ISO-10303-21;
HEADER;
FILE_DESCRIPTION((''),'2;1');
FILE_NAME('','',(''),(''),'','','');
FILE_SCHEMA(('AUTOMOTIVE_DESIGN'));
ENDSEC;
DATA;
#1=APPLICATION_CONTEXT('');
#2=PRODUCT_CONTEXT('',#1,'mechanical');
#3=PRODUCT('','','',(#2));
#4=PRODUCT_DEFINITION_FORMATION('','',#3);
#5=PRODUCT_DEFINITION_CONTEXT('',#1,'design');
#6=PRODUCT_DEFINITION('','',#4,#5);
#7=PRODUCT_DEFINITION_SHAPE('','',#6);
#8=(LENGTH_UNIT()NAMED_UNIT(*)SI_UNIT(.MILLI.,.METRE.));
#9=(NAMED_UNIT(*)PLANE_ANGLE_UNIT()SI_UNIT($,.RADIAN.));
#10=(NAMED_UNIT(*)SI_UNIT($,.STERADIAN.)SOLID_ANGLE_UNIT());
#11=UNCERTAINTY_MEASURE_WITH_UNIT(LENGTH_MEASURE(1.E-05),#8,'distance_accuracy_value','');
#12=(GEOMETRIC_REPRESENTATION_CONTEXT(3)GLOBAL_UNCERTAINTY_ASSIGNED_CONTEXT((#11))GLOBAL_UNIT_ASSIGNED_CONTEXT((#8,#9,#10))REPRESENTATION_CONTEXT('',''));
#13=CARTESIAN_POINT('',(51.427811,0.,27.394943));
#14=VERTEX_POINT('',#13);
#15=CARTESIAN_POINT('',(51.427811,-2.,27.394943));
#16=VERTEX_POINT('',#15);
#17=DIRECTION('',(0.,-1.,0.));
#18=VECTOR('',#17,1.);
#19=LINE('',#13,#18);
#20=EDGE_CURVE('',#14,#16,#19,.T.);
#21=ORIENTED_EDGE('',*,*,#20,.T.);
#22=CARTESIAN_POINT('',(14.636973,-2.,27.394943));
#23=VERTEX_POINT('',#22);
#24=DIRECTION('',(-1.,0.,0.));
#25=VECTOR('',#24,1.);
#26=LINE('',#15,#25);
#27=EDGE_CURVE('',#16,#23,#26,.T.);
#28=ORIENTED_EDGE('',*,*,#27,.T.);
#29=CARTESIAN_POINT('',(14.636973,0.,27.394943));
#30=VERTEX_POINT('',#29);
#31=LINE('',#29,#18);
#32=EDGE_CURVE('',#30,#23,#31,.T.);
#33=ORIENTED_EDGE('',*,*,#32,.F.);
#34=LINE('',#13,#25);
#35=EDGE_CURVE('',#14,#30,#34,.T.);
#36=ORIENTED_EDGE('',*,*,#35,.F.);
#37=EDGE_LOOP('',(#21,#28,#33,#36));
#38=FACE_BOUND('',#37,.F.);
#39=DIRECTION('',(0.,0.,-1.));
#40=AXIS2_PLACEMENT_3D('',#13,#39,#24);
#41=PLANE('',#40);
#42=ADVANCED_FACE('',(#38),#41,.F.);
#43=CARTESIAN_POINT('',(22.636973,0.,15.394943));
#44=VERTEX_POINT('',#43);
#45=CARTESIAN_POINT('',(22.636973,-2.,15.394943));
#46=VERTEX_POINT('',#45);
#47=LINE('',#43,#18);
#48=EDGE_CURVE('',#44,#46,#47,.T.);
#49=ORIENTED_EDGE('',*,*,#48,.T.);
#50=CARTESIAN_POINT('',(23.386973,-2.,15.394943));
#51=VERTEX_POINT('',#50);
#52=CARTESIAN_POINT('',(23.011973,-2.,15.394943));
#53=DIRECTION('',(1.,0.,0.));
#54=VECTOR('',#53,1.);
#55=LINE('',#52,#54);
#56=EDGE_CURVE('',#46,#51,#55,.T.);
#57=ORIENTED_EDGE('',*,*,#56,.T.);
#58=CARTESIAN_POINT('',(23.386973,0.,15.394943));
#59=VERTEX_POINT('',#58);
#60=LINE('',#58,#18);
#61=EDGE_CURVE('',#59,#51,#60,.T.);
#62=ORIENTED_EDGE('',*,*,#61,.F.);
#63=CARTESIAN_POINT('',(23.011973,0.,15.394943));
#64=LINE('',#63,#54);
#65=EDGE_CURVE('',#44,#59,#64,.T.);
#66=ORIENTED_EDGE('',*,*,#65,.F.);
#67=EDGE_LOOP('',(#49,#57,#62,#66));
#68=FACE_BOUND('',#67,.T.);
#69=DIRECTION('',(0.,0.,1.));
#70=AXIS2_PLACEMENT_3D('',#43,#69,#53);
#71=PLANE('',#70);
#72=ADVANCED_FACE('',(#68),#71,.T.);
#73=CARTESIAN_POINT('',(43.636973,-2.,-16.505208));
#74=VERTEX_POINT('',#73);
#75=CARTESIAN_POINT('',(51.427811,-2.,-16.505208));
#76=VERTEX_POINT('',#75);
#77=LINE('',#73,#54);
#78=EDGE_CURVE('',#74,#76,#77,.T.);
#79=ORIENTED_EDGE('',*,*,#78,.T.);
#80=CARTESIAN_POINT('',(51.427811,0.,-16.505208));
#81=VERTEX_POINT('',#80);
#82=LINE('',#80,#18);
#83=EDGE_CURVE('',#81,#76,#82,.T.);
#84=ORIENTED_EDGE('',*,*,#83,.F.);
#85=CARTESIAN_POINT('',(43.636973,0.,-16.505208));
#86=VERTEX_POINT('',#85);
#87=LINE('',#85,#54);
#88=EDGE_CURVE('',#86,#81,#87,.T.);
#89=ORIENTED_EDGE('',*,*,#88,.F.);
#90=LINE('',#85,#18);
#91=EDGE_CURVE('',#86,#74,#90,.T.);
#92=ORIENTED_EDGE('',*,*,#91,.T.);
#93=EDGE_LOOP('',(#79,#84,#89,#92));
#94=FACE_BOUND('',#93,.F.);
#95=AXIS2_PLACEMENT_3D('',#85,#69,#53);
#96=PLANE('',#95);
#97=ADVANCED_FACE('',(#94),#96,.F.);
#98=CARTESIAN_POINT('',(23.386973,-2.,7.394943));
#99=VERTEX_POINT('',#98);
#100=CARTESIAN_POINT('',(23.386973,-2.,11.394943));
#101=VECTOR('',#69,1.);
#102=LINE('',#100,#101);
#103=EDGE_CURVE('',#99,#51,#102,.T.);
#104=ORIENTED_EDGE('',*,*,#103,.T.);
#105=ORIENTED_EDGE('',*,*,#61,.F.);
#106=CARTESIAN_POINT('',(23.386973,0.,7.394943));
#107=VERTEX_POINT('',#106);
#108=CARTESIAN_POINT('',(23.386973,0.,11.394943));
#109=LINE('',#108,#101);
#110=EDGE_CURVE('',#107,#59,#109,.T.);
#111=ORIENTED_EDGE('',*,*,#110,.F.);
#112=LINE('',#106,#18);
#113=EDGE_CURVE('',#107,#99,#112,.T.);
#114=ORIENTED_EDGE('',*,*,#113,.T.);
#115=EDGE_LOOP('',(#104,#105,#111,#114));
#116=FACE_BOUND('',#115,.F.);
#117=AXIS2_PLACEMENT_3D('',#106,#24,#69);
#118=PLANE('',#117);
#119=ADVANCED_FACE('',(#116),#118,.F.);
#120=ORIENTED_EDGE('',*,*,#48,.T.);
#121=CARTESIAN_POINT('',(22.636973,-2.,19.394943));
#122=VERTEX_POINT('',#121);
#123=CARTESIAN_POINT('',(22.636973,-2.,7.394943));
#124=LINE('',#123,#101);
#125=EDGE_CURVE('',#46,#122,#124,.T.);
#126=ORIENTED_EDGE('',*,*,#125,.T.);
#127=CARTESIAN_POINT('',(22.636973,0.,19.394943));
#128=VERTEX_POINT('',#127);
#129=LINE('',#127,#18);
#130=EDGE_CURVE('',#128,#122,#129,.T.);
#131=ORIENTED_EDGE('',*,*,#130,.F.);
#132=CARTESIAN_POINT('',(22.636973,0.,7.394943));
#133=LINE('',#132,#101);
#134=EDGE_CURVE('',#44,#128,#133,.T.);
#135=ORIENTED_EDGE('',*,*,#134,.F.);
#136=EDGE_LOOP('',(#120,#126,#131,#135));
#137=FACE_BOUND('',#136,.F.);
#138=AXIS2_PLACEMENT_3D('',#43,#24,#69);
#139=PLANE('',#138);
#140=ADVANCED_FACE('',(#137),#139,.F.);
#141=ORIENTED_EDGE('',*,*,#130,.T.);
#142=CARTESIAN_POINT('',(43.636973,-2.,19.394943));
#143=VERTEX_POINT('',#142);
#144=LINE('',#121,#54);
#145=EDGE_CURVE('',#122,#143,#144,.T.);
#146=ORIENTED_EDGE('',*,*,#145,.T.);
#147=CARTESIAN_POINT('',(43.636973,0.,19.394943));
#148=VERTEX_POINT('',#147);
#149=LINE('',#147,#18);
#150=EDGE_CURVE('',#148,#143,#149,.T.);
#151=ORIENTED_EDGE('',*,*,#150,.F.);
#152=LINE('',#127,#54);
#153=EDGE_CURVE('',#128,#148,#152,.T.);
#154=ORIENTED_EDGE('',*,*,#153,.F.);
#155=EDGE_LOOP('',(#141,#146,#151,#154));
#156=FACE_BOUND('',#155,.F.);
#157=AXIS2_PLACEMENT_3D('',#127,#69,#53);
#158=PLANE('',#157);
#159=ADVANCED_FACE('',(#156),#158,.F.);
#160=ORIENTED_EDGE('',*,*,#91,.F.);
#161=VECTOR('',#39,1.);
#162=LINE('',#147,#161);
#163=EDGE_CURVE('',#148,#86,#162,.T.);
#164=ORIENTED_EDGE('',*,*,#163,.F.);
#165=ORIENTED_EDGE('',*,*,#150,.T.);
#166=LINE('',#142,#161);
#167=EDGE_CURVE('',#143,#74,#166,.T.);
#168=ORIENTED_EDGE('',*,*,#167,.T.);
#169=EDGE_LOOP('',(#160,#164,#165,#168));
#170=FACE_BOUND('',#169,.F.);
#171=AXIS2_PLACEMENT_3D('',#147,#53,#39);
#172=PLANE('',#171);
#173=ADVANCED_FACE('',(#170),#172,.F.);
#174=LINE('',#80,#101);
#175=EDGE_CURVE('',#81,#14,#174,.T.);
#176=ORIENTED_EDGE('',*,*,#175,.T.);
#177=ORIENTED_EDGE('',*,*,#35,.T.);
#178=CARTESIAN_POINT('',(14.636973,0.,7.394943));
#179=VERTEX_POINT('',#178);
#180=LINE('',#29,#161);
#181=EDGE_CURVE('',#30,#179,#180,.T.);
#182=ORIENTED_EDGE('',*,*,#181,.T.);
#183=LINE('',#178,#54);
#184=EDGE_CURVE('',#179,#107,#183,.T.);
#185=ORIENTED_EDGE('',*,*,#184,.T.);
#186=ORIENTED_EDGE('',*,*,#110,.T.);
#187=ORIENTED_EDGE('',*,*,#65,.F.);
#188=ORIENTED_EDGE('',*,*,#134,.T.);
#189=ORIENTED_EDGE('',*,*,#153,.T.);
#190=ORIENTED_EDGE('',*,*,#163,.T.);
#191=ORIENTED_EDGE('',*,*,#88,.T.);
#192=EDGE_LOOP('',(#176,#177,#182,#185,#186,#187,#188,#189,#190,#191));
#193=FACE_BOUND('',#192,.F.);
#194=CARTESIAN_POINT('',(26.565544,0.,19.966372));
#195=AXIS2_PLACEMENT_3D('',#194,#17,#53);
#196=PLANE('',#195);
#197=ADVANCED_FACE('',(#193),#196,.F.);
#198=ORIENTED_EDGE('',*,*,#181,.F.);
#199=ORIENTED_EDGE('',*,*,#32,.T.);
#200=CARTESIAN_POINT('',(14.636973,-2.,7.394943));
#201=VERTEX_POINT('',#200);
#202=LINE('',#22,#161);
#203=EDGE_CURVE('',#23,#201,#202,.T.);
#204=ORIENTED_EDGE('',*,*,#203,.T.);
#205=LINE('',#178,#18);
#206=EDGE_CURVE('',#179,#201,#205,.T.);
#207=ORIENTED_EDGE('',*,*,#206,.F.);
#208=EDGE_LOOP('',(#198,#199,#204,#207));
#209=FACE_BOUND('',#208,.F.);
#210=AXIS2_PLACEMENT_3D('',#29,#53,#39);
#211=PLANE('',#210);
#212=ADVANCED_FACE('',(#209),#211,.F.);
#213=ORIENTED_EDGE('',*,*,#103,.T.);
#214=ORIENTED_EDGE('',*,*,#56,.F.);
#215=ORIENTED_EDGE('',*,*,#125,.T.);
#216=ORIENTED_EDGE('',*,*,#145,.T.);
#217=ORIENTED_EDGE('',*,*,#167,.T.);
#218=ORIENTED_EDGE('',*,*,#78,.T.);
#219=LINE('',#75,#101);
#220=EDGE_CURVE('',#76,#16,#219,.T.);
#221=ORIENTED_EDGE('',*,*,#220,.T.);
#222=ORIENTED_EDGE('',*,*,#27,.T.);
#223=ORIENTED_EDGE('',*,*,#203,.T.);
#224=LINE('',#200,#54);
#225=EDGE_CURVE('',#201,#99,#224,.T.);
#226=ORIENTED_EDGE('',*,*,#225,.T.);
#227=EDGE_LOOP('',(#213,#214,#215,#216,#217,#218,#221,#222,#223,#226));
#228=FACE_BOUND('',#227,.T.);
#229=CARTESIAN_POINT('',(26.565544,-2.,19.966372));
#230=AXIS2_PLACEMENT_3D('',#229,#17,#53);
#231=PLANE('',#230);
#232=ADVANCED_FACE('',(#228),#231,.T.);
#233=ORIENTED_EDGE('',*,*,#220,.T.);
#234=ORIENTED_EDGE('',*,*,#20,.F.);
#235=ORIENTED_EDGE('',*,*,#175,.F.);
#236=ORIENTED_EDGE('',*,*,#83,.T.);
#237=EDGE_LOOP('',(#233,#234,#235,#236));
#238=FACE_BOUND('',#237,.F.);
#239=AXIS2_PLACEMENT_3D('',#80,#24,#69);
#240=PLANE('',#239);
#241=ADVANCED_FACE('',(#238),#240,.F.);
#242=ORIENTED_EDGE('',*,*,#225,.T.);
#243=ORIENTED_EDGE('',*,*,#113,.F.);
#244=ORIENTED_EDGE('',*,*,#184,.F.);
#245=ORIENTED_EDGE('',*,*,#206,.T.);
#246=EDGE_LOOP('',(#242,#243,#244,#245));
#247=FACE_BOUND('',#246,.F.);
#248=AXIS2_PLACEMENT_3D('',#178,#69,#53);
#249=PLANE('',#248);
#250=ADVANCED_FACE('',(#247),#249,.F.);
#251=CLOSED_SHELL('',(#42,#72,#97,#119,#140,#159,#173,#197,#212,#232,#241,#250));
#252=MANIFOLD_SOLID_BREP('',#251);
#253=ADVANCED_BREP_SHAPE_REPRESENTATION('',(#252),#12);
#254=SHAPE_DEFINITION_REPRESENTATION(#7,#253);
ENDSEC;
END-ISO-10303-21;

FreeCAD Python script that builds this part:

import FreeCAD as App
import Part
import Sketcher

V = App.Vector
Q = App.Units.Quantity


def add_polygon(sketch, points):
    """Adds a closed chain of lines whose ends are joined by coincident constraints."""
    first, n = sketch.GeometryCount, len(points)
    for a, b in zip(points, points[1:] + points[:1]):
        sketch.addGeometry(Part.LineSegment(App.Vector(*a, 0), App.Vector(*b, 0)), False)
    for i in range(n):
        sketch.addConstraint(Sketcher.Constraint("Coincident", first + i, 2, first + (i + 1) % n, 1))

doc = App.newDocument("Part")
body = doc.addObject("PartDesign::Body", "Body")

# Sketch on XZ plane
sketch1 = body.newObject("Sketcher::SketchObject", "Sketch")
sketch1.AttachmentSupport = (doc.getObject("XZ_Plane"), [""])
sketch1.MapMode = "FlatFace"
add_polygon(sketch1, [(22.6, 19.4), (43.6, 19.4), (43.6, -16.5), (51.4, -16.5), (51.4, 27.4), (14.6, 27.4), (14.6, 7.4), (23.4, 7.4), (23.4, 15.4), (22.6, 15.4)])  # lines 0-9
sketch1.addConstraint(Sketcher.Constraint("Horizontal", 0))
sketch1.addConstraint(Sketcher.Constraint("Vertical", 1))
sketch1.addConstraint(Sketcher.Constraint("Horizontal", 2))
sketch1.addConstraint(Sketcher.Constraint("Vertical", 3))
sketch1.addConstraint(Sketcher.Constraint("Horizontal", 4))
sketch1.addConstraint(Sketcher.Constraint("Vertical", 5))
sketch1.addConstraint(Sketcher.Constraint("Horizontal", 6))
sketch1.addConstraint(Sketcher.Constraint("Vertical", 7))
sketch1.addConstraint(Sketcher.Constraint("Horizontal", 8))
sketch1.addConstraint(Sketcher.Constraint("Vertical", 9))
sketch1.addConstraint(Sketcher.Constraint("DistanceX", 0, 1, 0, 2, Q("21 mm")))
sketch1.addConstraint(Sketcher.Constraint("DistanceY", 5, 2, 5, 1, Q("20 mm")))
sketch1.addConstraint(Sketcher.Constraint("DistanceY", 7, 1, 7, 2, Q("8 mm")))
sketch1.addConstraint(Sketcher.Constraint("DistanceY", 9, 1, 9, 2, Q("4 mm")))
sketch1.addConstraint(Sketcher.Constraint("DistanceX", 4, 2, 0, 2, Q("29 mm")))
sketch1.addConstraint(Sketcher.Constraint("DistanceX", 6, 1, 6, 2, Q("8.75 mm")))
sketch1.addConstraint(Sketcher.Constraint("DistanceX", 2, 1, 2, 2, Q("7.790838 mm")))
sketch1.addConstraint(Sketcher.Constraint("DistanceY", 1, 2, 1, 1, Q("35.900151 mm")))
sketch1.addConstraint(Sketcher.Constraint("DistanceX", -1, 1, 2, 2, Q("51.427811 mm")))
sketch1.addConstraint(Sketcher.Constraint("DistanceY", -1, 1, 0, 2, Q("19.394943 mm")))
pad1 = body.newObject("PartDesign::Pad", "Pad")
pad1.Profile = sketch1
pad1.Length = 2

doc.recompute()
